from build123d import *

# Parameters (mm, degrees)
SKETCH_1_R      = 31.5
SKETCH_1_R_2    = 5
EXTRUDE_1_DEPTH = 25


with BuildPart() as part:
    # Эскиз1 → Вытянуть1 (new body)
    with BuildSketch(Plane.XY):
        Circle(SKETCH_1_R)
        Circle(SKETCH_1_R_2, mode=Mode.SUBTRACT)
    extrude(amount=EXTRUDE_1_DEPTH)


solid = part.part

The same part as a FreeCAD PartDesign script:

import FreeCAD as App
import Part
import Sketcher
from FreeCAD import Vector

doc = App.newDocument("Part")
params = doc.addObject("Spreadsheet::Sheet", "Params")
for row, (alias, value) in enumerate([
    ("sketch1_diameter", "63 mm"),
    ("sketch1_diameter2", "10 mm"),
    ("pad1_length", "25 mm"),
], start=1):
    params.set(f"A{row}", alias)
    params.set(f"B{row}", "=" + value)
    params.setAlias(f"B{row}", alias)

body = doc.addObject("PartDesign::Body", "Body")

sketch1 = doc.addObject("Sketcher::SketchObject", "Sketch")
body.addObject(sketch1)
sketch1.AttachmentSupport = (doc.XY_Plane, [""])
sketch1.MapMode = "FlatFace"
sketch1.addGeometry([
    Part.Circle(Vector(0, 0, 0), Vector(0, 0, 1), 32),
    Part.Circle(Vector(0, 0, 0), Vector(0, 0, 1), 5),
], False)
sketch1.addConstraint([
    Sketcher.Constraint("Coincident", 0, 3, -1, 1),
    Sketcher.Constraint("Coincident", 1, 3, -1, 1),
    Sketcher.Constraint("Diameter", 0, 63.0),
    Sketcher.Constraint("Diameter", 1, 10.0),
])
sketch1.setExpression("Constraints[2]", "Params.sketch1_diameter")
sketch1.setExpression("Constraints[3]", "Params.sketch1_diameter2")
pad1 = doc.addObject("PartDesign::Pad", "Pad")
body.addObject(pad1)
pad1.Profile = sketch1
pad1.setExpression("Length", "Params.pad1_length")

doc.recompute()
